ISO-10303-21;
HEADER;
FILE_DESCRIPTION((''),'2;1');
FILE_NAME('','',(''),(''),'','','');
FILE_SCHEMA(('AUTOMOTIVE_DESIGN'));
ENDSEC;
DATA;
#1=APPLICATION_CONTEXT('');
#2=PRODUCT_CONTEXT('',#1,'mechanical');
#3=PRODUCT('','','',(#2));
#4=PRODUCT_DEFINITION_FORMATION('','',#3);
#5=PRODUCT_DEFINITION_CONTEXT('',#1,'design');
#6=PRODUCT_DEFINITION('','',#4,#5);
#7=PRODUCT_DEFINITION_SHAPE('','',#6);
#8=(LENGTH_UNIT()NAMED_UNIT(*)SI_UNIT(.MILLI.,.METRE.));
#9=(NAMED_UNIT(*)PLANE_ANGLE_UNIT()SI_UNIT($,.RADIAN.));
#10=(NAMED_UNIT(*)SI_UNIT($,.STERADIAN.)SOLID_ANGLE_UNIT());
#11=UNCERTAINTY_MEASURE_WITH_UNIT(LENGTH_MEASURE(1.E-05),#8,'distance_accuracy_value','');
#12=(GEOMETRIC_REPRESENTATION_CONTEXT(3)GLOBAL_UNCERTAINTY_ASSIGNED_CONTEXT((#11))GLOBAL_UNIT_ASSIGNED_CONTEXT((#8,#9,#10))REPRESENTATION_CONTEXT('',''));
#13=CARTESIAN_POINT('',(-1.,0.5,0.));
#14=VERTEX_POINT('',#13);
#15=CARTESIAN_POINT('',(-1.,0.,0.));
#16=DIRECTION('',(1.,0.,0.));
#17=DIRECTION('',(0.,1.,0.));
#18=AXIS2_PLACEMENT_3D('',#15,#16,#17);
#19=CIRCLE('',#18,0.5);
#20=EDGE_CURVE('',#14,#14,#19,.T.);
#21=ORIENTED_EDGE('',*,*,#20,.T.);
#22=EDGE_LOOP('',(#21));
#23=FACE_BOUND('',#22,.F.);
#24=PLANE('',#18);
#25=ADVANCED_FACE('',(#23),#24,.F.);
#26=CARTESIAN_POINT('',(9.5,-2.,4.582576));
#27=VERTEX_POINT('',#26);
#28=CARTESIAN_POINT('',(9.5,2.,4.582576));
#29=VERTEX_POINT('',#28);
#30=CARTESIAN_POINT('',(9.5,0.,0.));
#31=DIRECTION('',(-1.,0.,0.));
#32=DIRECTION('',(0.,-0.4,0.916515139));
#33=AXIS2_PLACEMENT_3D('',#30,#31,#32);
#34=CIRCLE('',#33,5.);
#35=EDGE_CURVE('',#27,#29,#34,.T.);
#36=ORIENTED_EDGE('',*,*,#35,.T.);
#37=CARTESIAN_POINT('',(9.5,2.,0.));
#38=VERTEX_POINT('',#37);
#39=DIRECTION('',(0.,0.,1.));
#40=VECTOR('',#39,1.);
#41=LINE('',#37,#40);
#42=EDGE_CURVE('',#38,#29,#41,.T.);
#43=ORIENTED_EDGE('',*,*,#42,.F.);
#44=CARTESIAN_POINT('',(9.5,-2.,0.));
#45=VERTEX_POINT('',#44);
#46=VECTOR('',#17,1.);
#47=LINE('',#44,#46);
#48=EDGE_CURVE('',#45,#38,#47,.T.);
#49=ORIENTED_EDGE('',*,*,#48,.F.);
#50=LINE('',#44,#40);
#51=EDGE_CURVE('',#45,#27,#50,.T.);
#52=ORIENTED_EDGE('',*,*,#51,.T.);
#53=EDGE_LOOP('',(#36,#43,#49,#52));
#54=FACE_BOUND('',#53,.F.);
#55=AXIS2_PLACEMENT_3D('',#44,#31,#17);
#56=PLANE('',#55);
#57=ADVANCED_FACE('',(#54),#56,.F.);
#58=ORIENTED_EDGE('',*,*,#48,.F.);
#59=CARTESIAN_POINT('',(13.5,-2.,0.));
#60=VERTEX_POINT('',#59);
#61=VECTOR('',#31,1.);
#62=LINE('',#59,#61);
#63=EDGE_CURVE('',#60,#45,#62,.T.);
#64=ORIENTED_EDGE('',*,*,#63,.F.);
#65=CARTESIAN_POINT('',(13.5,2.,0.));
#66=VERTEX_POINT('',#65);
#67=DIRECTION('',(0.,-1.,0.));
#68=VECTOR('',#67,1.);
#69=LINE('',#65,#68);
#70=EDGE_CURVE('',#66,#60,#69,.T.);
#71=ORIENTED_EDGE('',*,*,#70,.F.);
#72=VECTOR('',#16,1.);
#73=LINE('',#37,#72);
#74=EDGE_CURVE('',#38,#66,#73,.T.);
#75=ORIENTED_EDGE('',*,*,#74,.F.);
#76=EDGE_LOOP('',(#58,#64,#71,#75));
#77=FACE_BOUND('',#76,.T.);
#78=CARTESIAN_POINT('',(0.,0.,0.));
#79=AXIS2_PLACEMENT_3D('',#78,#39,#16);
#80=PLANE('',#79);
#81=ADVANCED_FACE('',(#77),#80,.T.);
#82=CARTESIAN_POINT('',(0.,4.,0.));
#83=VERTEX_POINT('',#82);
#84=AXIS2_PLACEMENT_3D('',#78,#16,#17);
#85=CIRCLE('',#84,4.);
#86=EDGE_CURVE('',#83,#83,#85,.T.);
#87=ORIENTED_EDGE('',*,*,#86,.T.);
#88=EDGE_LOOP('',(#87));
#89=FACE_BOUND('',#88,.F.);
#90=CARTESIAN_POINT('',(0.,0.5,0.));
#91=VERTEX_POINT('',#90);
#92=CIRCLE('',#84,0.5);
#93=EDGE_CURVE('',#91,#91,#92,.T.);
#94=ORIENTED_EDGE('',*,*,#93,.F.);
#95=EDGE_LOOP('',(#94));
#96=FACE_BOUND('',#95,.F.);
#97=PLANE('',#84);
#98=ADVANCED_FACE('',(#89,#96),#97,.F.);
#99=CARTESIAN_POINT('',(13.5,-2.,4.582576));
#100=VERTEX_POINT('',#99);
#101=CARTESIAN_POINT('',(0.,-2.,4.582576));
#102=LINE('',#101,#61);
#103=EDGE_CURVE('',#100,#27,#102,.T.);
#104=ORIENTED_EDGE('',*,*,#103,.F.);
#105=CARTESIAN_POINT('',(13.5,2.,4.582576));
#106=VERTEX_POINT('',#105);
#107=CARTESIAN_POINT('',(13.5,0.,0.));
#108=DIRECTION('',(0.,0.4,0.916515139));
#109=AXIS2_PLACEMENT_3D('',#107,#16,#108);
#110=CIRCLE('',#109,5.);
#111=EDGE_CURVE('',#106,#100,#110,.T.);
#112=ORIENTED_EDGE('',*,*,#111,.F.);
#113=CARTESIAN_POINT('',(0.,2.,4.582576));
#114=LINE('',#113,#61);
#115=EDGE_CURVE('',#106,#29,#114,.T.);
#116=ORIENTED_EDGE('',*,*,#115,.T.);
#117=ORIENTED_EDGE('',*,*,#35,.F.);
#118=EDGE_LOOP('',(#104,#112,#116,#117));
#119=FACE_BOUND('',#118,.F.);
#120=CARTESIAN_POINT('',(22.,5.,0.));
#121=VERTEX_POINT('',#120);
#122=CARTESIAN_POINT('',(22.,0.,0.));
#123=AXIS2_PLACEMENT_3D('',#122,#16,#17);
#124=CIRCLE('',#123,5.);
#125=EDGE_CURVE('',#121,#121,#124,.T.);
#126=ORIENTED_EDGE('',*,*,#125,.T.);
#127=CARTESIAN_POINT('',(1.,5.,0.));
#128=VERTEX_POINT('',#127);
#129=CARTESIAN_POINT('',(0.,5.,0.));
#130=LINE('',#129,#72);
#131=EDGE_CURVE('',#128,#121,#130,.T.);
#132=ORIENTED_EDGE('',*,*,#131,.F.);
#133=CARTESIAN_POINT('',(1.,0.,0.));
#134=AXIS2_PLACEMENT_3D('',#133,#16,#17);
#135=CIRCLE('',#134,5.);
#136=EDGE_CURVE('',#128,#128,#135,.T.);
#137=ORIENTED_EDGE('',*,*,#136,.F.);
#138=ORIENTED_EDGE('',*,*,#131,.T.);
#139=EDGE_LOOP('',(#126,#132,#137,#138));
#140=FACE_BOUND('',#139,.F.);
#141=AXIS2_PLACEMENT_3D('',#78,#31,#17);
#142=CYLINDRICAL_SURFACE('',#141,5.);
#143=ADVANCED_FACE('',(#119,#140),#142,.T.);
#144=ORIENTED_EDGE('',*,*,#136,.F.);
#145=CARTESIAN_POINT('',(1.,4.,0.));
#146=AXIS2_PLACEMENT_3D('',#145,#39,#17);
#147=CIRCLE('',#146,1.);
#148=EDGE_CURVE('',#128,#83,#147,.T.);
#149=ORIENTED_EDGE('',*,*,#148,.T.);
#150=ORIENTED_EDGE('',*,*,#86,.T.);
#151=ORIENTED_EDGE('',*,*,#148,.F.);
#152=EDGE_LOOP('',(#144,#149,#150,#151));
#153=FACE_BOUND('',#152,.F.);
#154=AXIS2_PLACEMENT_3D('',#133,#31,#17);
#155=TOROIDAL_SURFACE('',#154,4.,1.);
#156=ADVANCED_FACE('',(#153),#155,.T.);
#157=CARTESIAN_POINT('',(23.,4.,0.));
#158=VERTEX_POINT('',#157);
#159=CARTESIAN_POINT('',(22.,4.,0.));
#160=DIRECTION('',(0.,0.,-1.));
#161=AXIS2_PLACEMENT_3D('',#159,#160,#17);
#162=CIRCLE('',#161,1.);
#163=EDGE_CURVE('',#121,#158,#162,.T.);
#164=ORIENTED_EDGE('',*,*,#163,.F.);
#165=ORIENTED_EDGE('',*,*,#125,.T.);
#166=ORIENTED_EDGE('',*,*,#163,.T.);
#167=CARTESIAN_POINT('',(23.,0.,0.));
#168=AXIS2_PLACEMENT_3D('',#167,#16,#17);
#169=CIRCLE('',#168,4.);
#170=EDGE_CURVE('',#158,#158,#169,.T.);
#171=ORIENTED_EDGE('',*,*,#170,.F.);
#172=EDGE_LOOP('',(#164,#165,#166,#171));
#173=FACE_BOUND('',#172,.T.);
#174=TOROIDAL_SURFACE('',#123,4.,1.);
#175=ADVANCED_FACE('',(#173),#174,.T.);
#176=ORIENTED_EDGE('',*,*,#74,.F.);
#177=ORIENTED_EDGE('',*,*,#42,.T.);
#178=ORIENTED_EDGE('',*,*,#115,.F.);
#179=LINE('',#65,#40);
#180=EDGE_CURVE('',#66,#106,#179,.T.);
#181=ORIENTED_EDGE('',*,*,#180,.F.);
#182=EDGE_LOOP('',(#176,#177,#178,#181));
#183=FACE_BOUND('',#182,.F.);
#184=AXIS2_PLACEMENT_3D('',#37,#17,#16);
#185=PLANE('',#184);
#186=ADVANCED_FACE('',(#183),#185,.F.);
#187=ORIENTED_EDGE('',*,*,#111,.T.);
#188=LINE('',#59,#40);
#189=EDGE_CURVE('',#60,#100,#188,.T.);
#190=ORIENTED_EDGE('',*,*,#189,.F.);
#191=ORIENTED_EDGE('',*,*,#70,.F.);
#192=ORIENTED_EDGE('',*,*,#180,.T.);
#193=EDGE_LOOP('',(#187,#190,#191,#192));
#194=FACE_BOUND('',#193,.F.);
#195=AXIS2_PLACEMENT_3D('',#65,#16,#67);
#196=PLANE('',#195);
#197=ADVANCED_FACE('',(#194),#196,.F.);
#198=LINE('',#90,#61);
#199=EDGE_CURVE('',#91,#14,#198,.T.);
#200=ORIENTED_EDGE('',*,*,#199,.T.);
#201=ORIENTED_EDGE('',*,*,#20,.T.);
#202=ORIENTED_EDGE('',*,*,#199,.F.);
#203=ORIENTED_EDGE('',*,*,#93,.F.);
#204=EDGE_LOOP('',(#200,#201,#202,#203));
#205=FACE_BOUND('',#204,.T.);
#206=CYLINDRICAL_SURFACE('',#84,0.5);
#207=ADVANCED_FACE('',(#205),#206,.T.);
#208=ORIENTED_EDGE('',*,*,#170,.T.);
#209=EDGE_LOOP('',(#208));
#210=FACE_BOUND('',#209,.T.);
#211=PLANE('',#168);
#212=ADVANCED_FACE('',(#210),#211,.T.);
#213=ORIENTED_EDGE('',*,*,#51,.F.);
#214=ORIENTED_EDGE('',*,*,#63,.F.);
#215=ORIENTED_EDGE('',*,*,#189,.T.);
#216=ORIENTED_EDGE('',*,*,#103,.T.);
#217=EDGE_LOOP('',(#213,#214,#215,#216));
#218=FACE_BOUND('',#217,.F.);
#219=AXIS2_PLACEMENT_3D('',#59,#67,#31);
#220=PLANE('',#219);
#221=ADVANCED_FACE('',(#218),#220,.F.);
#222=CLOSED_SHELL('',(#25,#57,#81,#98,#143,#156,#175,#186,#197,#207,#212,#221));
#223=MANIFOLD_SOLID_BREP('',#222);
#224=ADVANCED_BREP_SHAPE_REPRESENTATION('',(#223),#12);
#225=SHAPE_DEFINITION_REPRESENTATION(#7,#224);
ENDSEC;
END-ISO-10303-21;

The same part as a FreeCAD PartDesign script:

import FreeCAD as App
import Part
import Sketcher
Q = App.Units.Quantity


def edges_at(feature, points):
    """Names of the edges that pass closest to the given points."""
    edges = feature.Shape.Edges
    near = lambda p: min(range(len(edges)), key=lambda i: edges[i].distToShape(Part.Vertex(*p))[0])
    return sorted({f"Edge{near(p) + 1}" for p in points})


def add_polygon(sketch, points):
    """Adds a closed chain of lines whose ends are joined by coincident constraints."""
    first, n = sketch.GeometryCount, len(points)
    for a, b in zip(points, points[1:] + points[:1]):
        sketch.addGeometry(Part.LineSegment(App.Vector(*a, 0), App.Vector(*b, 0)), False)
    for i in range(n):
        sketch.addConstraint(Sketcher.Constraint("Coincident", first + i, 2, first + (i + 1) % n, 1))

doc = App.newDocument("Part")
body = doc.addObject("PartDesign::Body", "Body")

sketch1 = body.newObject("Sketcher::SketchObject", "Sketch")
sketch1.AttachmentSupport = (doc.getObject("YZ_Plane"), [""])
sketch1.MapMode = "FlatFace"
sketch1.addGeometry(Part.Circle(App.Vector(0, 0, 0), App.Vector(0, 0, 1), 5), False)
sketch1.addConstraint(Sketcher.Constraint("Coincident", 0, 3, -1, 1))
sketch1.addConstraint(Sketcher.Constraint("Diameter", 0, Q("10 mm")))
pad1 = body.newObject("PartDesign::Pad", "Pad")
pad1.Profile = sketch1
pad1.Length = 23

sketch2 = body.newObject("Sketcher::SketchObject", "Sketch001")
sketch2.AttachmentSupport = (doc.getObject("YZ_Plane"), [""])
sketch2.MapMode = "FlatFace"
sketch2.addGeometry(Part.Circle(App.Vector(0, 0, 0), App.Vector(0, 0, 1), 0.5), False)
sketch2.addConstraint(Sketcher.Constraint("Coincident", 0, 3, -1, 1))
sketch2.addConstraint(Sketcher.Constraint("Diameter", 0, Q("1 mm")))
pad2 = body.newObject("PartDesign::Pad", "Pad001")
pad2.Profile = sketch2
pad2.Length = 1
pad2.Reversed = True
doc.recompute()

fillet = body.newObject("PartDesign::Fillet", "Fillet")
fillet.Base = (pad2, edges_at(pad2, [(0, -4.662, -1.808), (23, -4.662, -1.808)]))
fillet.Radius = 1

sketch3 = body.newObject("Sketcher::SketchObject", "Sketch002")
sketch3.AttachmentSupport = (doc.getObject("XY_Plane"), [""])
sketch3.MapMode = "FlatFace"
add_polygon(sketch3, [(13.5, 2), (9.5, 2), (9.5, -2), (13.5, -2)])
sketch3.addConstraint(Sketcher.Constraint("Horizontal", 0))
sketch3.addConstraint(Sketcher.Constraint("Vertical", 1))
sketch3.addConstraint(Sketcher.Constraint("Horizontal", 2))
sketch3.addConstraint(Sketcher.Constraint("Vertical", 3))
sketch3.addConstraint(Sketcher.Constraint("Equal", 2, 1))
sketch3.addConstraint(Sketcher.Constraint("DistanceX", 0, 2, 0, 1, Q("4 mm")))
sketch3.addConstraint(Sketcher.Constraint("DistanceY", -1, 1, 0, 2, Q("2 mm")))
sketch3.addConstraint(Sketcher.Constraint("DistanceX", -1, 1, 0, 2, Q("9.5 mm")))
pocket1 = body.newObject("PartDesign::Pocket", "Pocket")
pocket1.Profile = sketch3
pocket1.Length = 5
pocket1.Reversed = True

doc.recompute()
